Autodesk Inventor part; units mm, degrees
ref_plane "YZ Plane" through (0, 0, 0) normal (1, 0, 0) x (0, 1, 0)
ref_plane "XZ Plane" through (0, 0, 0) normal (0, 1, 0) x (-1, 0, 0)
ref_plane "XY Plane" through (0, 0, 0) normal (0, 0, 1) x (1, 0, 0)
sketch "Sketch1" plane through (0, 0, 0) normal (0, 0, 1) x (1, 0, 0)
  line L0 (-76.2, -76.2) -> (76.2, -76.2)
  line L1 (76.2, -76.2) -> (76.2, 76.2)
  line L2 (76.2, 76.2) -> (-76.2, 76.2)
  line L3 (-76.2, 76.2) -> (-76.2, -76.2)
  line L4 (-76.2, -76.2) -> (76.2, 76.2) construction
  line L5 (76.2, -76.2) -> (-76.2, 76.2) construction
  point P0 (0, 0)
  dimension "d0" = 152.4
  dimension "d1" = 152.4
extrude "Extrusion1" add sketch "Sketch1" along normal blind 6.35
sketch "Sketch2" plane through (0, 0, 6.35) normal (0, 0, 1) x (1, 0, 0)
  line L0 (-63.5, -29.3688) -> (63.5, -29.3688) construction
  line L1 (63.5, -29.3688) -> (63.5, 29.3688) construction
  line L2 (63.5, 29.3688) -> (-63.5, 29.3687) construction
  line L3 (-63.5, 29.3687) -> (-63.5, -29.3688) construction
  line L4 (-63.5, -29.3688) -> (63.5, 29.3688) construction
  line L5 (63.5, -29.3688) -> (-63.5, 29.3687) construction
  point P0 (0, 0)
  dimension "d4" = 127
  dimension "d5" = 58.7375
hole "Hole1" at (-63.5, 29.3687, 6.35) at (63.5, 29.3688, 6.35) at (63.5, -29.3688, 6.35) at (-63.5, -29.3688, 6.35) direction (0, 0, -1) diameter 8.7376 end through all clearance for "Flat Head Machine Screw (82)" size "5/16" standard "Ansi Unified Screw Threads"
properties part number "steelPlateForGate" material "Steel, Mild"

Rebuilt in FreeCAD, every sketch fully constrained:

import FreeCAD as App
import Part
import Sketcher
Q = App.Units.Quantity

doc = App.newDocument("Part")
body = doc.addObject("PartDesign::Body", "Body")

sketch1 = doc.addObject("Sketcher::SketchObject", "Sketch")
body.addObject(sketch1)
sketch1.AttachmentSupport = (doc.XY_Plane, [""])
sketch1.MapMode = "FlatFace"
sketch1.addGeometry([
    Part.LineSegment(App.Vector(-76.2, 76.2, 0), App.Vector(-76.2, -76.2, 0)),
    Part.LineSegment(App.Vector(-76.2, -76.2, 0), App.Vector(76.2, -76.2, 0)),
    Part.LineSegment(App.Vector(76.2, -76.2, 0), App.Vector(76.2, 76.2, 0)),
    Part.LineSegment(App.Vector(76.2, 76.2, 0), App.Vector(-76.2, 76.2, 0)),
], False)
sketch1.addConstraint([
    Sketcher.Constraint("Coincident", 0, 2, 1, 1),
    Sketcher.Constraint("Coincident", 1, 2, 2, 1),
    Sketcher.Constraint("Coincident", 2, 2, 3, 1),
    Sketcher.Constraint("Coincident", 3, 2, 0, 1),
    Sketcher.Constraint("Vertical", 0),
    Sketcher.Constraint("Horizontal", 1),
    Sketcher.Constraint("Vertical", 2),
    Sketcher.Constraint("Horizontal", 3),
    Sketcher.Constraint("Symmetric", 0, 2, 2, 2, -1, 1),
    Sketcher.Constraint("Equal", 3, 0),
    Sketcher.Constraint("DistanceX", 1, 1, 1, 2, Q("6 in")),
])
pad1 = doc.addObject("PartDesign::Pad", "Pad")
body.addObject(pad1)
pad1.Profile = sketch1
pad1.Length = Q("0.25 in")

sketch2 = doc.addObject("Sketcher::SketchObject", "Sketch001")
body.addObject(sketch2)
sketch2.AttachmentSupport = (doc.XY_Plane, [""])
sketch2.MapMode = "FlatFace"
sketch2.AttachmentOffset = App.Placement(App.Vector(0, 0, 0.25 * 25.4), App.Rotation())
sketch2.addGeometry([
    Part.Circle(App.Vector(-63.5, 29.3687, 0), App.Vector(0, 0, 1), 4.3688),
    Part.Circle(App.Vector(63.5, 29.3688, 0), App.Vector(0, 0, 1), 4.3688),
    Part.Circle(App.Vector(63.5, -29.3688, 0), App.Vector(0, 0, 1), 4.3688),
    Part.Circle(App.Vector(-63.5, -29.3688, 0), App.Vector(0, 0, 1), 4.3688),
], False)
sketch2.addConstraint([
    Sketcher.Constraint("Equal", 0, 1),
    Sketcher.Constraint("Equal", 1, 2),
    Sketcher.Constraint("Equal", 2, 3),
    Sketcher.Constraint("Symmetric", 0, 3, 2, 3, -1, 1),
    Sketcher.Constraint("Symmetric", 1, 3, 3, 3, -1, 1),
    Sketcher.Constraint("Symmetric", 0, 3, 1, 3, -2),
    Sketcher.Constraint("Diameter", 0, Q("0.344 in")),
    Sketcher.Constraint("DistanceX", 0, 3, 1, 3, Q("5 in")),
    Sketcher.Constraint("DistanceY", -1, 1, 0, 3, Q("1.156248 in")),
])
doc.recompute()
hole = doc.addObject("PartDesign::Hole", "Hole")
body.addObject(hole)
hole.Profile = sketch2
hole.ThreadType = "None"
hole.Diameter = Q("0.344 in")
hole.DepthType = "ThroughAll"

doc.recompute()
